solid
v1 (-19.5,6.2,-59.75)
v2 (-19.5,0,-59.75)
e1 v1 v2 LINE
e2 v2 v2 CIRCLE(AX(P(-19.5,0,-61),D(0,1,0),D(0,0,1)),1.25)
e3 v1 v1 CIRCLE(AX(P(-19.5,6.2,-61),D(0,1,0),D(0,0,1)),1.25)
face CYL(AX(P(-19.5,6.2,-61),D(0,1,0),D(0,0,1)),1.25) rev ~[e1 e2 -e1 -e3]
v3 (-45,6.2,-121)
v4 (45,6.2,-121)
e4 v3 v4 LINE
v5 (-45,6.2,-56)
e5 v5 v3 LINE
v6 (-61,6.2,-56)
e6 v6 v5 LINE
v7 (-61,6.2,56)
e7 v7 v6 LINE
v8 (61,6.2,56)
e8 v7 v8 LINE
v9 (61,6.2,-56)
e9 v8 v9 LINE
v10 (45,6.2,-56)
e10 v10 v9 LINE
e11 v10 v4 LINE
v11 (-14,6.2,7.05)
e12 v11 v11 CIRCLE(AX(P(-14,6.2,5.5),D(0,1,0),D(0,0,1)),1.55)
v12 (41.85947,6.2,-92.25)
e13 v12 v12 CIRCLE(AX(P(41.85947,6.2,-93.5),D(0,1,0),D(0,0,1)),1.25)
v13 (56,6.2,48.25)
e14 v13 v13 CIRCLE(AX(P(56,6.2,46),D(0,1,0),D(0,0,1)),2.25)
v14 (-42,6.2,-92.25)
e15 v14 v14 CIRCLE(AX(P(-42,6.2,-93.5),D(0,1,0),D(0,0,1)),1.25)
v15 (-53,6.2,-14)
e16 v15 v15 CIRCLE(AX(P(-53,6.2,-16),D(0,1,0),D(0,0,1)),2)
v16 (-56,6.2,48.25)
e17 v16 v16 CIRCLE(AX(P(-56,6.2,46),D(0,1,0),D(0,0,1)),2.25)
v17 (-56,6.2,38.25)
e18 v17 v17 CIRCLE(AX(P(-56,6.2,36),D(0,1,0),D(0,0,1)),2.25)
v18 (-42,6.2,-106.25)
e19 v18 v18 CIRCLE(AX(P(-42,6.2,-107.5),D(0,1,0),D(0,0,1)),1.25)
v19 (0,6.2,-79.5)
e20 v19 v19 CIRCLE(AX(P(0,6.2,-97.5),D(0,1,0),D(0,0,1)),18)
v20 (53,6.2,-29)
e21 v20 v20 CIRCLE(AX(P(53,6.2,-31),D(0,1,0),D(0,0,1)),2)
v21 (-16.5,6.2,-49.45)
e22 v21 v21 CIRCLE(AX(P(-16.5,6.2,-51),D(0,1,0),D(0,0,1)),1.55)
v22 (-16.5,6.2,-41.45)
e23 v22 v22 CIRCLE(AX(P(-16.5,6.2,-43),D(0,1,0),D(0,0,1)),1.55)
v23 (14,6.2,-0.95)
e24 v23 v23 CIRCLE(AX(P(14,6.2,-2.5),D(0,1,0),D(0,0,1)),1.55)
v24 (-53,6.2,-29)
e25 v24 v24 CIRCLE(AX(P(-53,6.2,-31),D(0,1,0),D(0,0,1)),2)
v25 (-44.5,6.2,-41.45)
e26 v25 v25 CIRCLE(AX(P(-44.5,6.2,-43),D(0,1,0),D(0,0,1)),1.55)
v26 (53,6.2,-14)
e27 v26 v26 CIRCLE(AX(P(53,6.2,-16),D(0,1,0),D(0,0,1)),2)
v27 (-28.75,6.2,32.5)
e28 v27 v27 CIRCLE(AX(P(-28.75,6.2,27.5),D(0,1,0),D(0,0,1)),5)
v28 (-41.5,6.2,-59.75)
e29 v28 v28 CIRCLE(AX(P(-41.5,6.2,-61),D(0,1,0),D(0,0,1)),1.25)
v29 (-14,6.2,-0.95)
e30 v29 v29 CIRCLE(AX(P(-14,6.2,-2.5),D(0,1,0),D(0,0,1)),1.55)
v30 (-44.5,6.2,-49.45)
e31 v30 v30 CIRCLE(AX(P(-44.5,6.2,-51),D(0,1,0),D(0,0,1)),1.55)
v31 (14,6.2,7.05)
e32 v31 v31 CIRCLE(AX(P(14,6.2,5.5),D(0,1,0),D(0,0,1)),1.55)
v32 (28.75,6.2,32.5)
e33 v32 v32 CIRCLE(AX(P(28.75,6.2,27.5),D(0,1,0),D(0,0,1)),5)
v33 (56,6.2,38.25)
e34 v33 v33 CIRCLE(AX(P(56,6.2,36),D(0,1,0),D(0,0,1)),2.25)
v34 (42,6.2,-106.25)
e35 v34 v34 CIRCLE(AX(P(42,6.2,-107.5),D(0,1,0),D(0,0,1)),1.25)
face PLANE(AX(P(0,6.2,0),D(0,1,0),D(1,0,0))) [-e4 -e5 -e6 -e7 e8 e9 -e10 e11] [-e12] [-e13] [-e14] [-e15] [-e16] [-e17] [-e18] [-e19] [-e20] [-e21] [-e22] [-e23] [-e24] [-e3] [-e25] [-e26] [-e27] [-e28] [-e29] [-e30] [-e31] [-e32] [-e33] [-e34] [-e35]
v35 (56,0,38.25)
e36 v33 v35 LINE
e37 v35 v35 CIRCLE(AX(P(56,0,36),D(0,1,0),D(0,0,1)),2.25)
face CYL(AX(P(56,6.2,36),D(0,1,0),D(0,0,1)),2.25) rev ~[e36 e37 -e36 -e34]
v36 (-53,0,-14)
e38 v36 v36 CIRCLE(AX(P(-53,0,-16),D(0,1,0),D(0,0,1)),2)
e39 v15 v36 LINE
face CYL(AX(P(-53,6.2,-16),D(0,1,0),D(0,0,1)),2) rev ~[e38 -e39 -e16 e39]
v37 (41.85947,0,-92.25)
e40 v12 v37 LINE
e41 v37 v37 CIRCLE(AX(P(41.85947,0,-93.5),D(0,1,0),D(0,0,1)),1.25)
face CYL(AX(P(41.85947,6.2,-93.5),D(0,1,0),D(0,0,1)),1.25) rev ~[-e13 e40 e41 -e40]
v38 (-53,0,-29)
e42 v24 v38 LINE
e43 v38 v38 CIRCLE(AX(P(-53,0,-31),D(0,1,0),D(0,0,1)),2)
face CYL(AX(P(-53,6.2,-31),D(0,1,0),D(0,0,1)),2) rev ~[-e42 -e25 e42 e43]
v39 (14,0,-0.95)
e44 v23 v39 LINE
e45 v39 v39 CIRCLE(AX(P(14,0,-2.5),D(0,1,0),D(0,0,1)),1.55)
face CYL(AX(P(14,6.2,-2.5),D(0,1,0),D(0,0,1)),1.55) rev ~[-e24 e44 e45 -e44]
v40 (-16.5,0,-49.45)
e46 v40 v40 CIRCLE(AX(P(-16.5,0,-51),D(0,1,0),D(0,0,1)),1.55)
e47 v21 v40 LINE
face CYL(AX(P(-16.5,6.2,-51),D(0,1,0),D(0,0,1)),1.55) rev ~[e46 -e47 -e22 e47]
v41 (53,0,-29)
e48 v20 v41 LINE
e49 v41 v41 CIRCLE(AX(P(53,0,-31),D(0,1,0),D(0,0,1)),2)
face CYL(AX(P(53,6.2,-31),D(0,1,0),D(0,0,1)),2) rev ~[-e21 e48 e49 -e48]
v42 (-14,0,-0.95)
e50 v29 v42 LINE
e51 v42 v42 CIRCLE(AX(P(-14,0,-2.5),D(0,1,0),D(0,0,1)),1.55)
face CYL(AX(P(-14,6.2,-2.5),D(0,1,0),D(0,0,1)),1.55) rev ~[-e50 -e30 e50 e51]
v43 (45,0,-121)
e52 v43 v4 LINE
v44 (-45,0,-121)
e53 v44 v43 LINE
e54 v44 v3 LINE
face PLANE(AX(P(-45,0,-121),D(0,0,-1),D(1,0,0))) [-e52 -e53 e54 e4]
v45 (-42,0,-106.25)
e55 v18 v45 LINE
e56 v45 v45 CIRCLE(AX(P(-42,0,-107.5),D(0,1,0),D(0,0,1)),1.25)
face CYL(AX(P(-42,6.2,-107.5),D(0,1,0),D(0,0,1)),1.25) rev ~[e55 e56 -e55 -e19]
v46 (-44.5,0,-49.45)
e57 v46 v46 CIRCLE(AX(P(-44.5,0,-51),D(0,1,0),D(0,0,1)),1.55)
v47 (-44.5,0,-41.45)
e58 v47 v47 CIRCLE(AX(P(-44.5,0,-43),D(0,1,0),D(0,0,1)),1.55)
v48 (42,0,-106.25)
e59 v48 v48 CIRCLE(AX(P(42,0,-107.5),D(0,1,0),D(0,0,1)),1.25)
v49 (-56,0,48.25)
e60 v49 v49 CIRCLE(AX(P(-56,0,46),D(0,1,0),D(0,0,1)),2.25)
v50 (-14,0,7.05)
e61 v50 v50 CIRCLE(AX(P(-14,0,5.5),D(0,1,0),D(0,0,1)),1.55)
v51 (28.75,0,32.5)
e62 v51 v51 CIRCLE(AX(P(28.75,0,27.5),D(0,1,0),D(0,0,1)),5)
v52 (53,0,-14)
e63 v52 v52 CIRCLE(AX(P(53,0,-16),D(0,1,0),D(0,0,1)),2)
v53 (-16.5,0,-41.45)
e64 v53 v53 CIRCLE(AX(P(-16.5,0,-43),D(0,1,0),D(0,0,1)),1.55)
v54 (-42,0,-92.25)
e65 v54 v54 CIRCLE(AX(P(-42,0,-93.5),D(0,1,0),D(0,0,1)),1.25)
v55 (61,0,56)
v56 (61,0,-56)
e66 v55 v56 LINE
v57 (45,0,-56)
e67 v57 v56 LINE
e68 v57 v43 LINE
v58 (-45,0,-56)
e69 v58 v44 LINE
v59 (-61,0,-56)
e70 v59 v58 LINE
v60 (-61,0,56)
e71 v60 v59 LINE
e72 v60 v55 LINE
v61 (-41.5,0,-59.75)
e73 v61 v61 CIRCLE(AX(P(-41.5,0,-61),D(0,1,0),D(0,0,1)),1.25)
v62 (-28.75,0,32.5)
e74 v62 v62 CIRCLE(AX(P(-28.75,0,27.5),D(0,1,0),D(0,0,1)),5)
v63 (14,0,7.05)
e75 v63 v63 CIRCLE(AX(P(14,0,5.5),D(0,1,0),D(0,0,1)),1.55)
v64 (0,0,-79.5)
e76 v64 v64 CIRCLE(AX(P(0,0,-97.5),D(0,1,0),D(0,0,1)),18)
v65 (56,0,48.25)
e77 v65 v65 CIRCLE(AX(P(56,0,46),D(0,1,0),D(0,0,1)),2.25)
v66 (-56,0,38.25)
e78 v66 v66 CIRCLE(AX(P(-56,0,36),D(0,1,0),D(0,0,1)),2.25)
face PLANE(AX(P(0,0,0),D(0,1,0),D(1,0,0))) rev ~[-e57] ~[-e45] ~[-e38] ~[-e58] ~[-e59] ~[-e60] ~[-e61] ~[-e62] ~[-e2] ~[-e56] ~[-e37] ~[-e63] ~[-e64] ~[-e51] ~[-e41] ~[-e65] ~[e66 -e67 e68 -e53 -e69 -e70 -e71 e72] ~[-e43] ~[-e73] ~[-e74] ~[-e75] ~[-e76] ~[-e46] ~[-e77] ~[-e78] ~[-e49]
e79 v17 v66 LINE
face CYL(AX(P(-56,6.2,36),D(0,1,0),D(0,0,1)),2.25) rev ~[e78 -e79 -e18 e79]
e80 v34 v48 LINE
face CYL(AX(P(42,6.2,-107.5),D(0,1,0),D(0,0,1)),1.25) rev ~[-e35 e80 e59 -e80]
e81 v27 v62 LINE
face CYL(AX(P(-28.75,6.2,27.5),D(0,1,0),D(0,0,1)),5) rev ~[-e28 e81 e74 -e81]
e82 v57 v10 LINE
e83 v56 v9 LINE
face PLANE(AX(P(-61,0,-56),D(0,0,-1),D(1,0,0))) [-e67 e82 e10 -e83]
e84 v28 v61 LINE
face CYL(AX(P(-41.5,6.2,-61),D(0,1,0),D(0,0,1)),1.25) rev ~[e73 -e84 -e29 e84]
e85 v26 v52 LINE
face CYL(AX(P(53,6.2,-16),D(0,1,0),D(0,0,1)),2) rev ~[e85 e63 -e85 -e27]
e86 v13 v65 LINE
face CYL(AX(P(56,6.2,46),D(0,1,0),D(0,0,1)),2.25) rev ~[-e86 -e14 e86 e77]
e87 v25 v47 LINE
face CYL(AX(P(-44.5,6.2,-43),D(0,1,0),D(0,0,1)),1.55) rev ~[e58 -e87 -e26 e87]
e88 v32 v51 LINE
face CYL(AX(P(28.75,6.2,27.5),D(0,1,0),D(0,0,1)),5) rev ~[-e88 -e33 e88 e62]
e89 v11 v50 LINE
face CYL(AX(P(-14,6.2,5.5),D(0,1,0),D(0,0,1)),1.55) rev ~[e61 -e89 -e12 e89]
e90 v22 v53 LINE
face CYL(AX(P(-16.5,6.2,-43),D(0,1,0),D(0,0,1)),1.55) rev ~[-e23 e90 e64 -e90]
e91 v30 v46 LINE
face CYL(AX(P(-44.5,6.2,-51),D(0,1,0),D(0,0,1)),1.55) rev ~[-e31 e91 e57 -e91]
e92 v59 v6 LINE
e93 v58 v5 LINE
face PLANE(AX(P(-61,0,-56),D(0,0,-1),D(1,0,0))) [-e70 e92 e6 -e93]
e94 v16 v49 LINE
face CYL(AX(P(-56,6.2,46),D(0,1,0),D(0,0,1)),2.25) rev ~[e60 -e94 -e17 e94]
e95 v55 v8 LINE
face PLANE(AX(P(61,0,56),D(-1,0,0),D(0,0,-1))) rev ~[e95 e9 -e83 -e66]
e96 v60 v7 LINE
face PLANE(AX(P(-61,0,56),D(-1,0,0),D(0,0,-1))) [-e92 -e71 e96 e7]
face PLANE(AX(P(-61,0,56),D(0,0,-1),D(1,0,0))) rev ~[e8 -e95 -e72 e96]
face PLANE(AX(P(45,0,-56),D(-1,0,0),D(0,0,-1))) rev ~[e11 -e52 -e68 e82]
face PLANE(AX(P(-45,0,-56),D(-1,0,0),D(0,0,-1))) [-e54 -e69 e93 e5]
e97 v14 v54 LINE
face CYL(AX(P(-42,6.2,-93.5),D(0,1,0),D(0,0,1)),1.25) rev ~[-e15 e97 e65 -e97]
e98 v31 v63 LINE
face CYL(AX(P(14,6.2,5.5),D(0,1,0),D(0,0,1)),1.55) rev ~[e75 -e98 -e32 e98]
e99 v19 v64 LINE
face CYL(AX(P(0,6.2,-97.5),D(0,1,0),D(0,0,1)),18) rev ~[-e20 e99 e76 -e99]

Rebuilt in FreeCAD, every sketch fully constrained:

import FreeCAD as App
import Part
import Sketcher

doc = App.newDocument("Part")
body = doc.addObject("PartDesign::Body", "Body")

# Sketch on XZ plane
sketch1 = body.newObject("Sketcher::SketchObject", "Sketch")
sketch1.AttachmentSupport = (doc.getObject("XZ_Plane"), [""])
sketch1.MapMode = "FlatFace"
sketch1.addGeometry(Part.LineSegment(App.Vector(-61, -56, 0), App.Vector(-61, 56, 0)), False)
sketch1.addGeometry(Part.LineSegment(App.Vector(-61, 56, 0), App.Vector(61, 56, 0)), False)
sketch1.addGeometry(Part.LineSegment(App.Vector(61, 56, 0), App.Vector(61, -56, 0)), False)
sketch1.addGeometry(Part.LineSegment(App.Vector(61, -56, 0), App.Vector(-61, -56, 0)), False)
sketch1.addConstraint(Sketcher.Constraint("Coincident", 0, 2, 1, 1))
sketch1.addConstraint(Sketcher.Constraint("Coincident", 1, 2, 2, 1))
sketch1.addConstraint(Sketcher.Constraint("Coincident", 2, 2, 3, 1))
sketch1.addConstraint(Sketcher.Constraint("Coincident", 3, 2, 0, 1))
sketch1.addConstraint(Sketcher.Constraint("Vertical", 0))
sketch1.addConstraint(Sketcher.Constraint("Horizontal", 1))
sketch1.addConstraint(Sketcher.Constraint("Vertical", 2))
sketch1.addConstraint(Sketcher.Constraint("Horizontal", 3))
sketch1.addConstraint(Sketcher.Constraint("Symmetric", 0, 2, 2, 2, -1, 1))
sketch1.addConstraint(Sketcher.Constraint("DistanceX", 1, 1, 1, 2, 122.0))
sketch1.addConstraint(Sketcher.Constraint("DistanceY", 0, 1, 0, 2, 112.0))
pad1 = body.newObject("PartDesign::Pad", "Pad")
pad1.Profile = sketch1
pad1.Length = 6.2
pad1.Reversed = True

# Sketch on XZ plane
sketch2 = body.newObject("Sketcher::SketchObject", "Sketch001")
sketch2.AttachmentSupport = (doc.getObject("XZ_Plane"), [""])
sketch2.MapMode = "FlatFace"
sketch2.addGeometry(Part.LineSegment(App.Vector(-45, -121, 0), App.Vector(-45, -56, 0)), False)
sketch2.addGeometry(Part.LineSegment(App.Vector(-45, -56, 0), App.Vector(45, -56, 0)), False)
sketch2.addGeometry(Part.LineSegment(App.Vector(45, -56, 0), App.Vector(45, -121, 0)), False)
sketch2.addGeometry(Part.LineSegment(App.Vector(45, -121, 0), App.Vector(-45, -121, 0)), False)
sketch2.addConstraint(Sketcher.Constraint("Coincident", 0, 2, 1, 1))
sketch2.addConstraint(Sketcher.Constraint("Coincident", 1, 2, 2, 1))
sketch2.addConstraint(Sketcher.Constraint("Coincident", 2, 2, 3, 1))
sketch2.addConstraint(Sketcher.Constraint("Coincident", 3, 2, 0, 1))
sketch2.addConstraint(Sketcher.Constraint("Vertical", 0))
sketch2.addConstraint(Sketcher.Constraint("Horizontal", 1))
sketch2.addConstraint(Sketcher.Constraint("Vertical", 2))
sketch2.addConstraint(Sketcher.Constraint("Horizontal", 3))
sketch2.addConstraint(Sketcher.Constraint("DistanceX", 1, 1, 1, 2, 90.0))
sketch2.addConstraint(Sketcher.Constraint("DistanceY", 0, 1, 0, 2, 65.0))
sketch2.addConstraint(Sketcher.Constraint("DistanceX", 0, 2, -1, 1, 45.0))
sketch2.addConstraint(Sketcher.Constraint("DistanceY", 0, 2, -1, 1, 56.0))
pad2 = body.newObject("PartDesign::Pad", "Pad001")
pad2.Profile = sketch2
pad2.Length = 6.2
pad2.Reversed = True

# Sketch on XZ plane
sketch3 = body.newObject("Sketcher::SketchObject", "Sketch002")
sketch3.AttachmentSupport = (doc.getObject("XZ_Plane"), [""])
sketch3.MapMode = "FlatFace"
sketch3.AttachmentOffset = App.Placement(App.Vector(0, 0, -6.2), App.Rotation())
sketch3.addGeometry(Part.Circle(App.Vector(-41.5, -61, 0), App.Vector(0, 0, 1), 1.25), False)
sketch3.addGeometry(Part.Circle(App.Vector(-19.5, -61, 0), App.Vector(0, 0, 1), 1.25), False)
sketch3.addGeometry(Part.Circle(App.Vector(-42, -93.5, 0), App.Vector(0, 0, 1), 1.25), False)
sketch3.addGeometry(Part.Circle(App.Vector(-42, -107.5, 0), App.Vector(0, 0, 1), 1.25), False)
sketch3.addGeometry(Part.Circle(App.Vector(42, -107.5, 0), App.Vector(0, 0, 1), 1.25), False)
sketch3.addGeometry(Part.Circle(App.Vector(41.85947, -93.5, 0), App.Vector(0, 0, 1), 1.25), False)
sketch3.addGeometry(Part.Circle(App.Vector(0, -97.5, 0), App.Vector(0, 0, 1), 18), False)
sketch3.addConstraint(Sketcher.Constraint("Equal", 0, 1))
sketch3.addConstraint(Sketcher.Constraint("Equal", 1, 2))
sketch3.addConstraint(Sketcher.Constraint("Equal", 2, 3))
sketch3.addConstraint(Sketcher.Constraint("Equal", 3, 4))
sketch3.addConstraint(Sketcher.Constraint("Equal", 4, 5))
sketch3.addConstraint(Sketcher.Constraint("Symmetric", 3, 3, 4, 3, -2))
sketch3.addConstraint(Sketcher.Constraint("PointOnObject", 6, 3, -2))
sketch3.addConstraint(Sketcher.Constraint("Horizontal", 0, 3, 1, 3))
sketch3.addConstraint(Sketcher.Constraint("Horizontal", 2, 3, 5, 3))
sketch3.addConstraint(Sketcher.Constraint("Vertical", 2, 3, 3, 3))
sketch3.addConstraint(Sketcher.Constraint("Diameter", 6, 36.0))
sketch3.addConstraint(Sketcher.Constraint("Diameter", 0, 2.5))
sketch3.addConstraint(Sketcher.Constraint("DistanceY", 0, 3, -1, 1, 61.0))
sketch3.addConstraint(Sketcher.Constraint("DistanceX", 2, 3, -1, 1, 42.0))
sketch3.addConstraint(Sketcher.Constraint("DistanceX", 0, 3, 1, 3, 22.0))
sketch3.addConstraint(Sketcher.Constraint("DistanceY", 3, 3, 2, 3, 14.0))
sketch3.addConstraint(Sketcher.Constraint("DistanceY", 6, 3, 5, 3, 4.0))
sketch3.addConstraint(Sketcher.Constraint("DistanceX", 0, 3, -1, 1, 41.5))
sketch3.addConstraint(Sketcher.Constraint("DistanceY", 2, 3, -1, 1, 93.5))
sketch3.addConstraint(Sketcher.Constraint("DistanceX", -1, 1, 5, 3, 41.85947))
pocket1 = body.newObject("PartDesign::Pocket", "Pocket")
pocket1.Profile = sketch3
pocket1.Type = "ThroughAll"
pocket1.Reversed = True

# Sketch on XZ plane
sketch4 = body.newObject("Sketcher::SketchObject", "Sketch003")
sketch4.AttachmentSupport = (doc.getObject("XZ_Plane"), [""])
sketch4.MapMode = "FlatFace"
sketch4.AttachmentOffset = App.Placement(App.Vector(0, 0, -6.2), App.Rotation())
sketch4.addGeometry(Part.Circle(App.Vector(-44.5, -51, 0), App.Vector(0, 0, 1), 1.55), False)
sketch4.addGeometry(Part.Circle(App.Vector(-16.5, -51, 0), App.Vector(0, 0, 1), 1.55), False)
sketch4.addGeometry(Part.Circle(App.Vector(-16.5, -43, 0), App.Vector(0, 0, 1), 1.55), False)
sketch4.addGeometry(Part.Circle(App.Vector(-44.5, -43, 0), App.Vector(0, 0, 1), 1.55), False)
sketch4.addGeometry(Part.Circle(App.Vector(-14, -2.5, 0), App.Vector(0, 0, 1), 1.55), False)
sketch4.addGeometry(Part.Circle(App.Vector(14, -2.5, 0), App.Vector(0, 0, 1), 1.55), False)
sketch4.addGeometry(Part.Circle(App.Vector(14, 5.5, 0), App.Vector(0, 0, 1), 1.55), False)
sketch4.addGeometry(Part.Circle(App.Vector(-14, 5.5, 0), App.Vector(0, 0, 1), 1.55), False)
sketch4.addConstraint(Sketcher.Constraint("Equal", 0, 1))
sketch4.addConstraint(Sketcher.Constraint("Equal", 1, 2))
sketch4.addConstraint(Sketcher.Constraint("Equal", 2, 3))
sketch4.addConstraint(Sketcher.Constraint("Equal", 3, 4))
sketch4.addConstraint(Sketcher.Constraint("Equal", 4, 5))
sketch4.addConstraint(Sketcher.Constraint("Equal", 5, 6))
sketch4.addConstraint(Sketcher.Constraint("Equal", 6, 7))
sketch4.addConstraint(Sketcher.Constraint("Symmetric", 4, 3, 5, 3, -2))
sketch4.addConstraint(Sketcher.Constraint("Symmetric", 6, 3, 7, 3, -2))
sketch4.addConstraint(Sketcher.Constraint("Horizontal", 0, 3, 1, 3))
sketch4.addConstraint(Sketcher.Constraint("Horizontal", 2, 3, 3, 3))
sketch4.addConstraint(Sketcher.Constraint("Vertical", 1, 3, 2, 3))
sketch4.addConstraint(Sketcher.Constraint("Vertical", 0, 3, 3, 3))
sketch4.addConstraint(Sketcher.Constraint("Vertical", 5, 3, 6, 3))
sketch4.addConstraint(Sketcher.Constraint("Diameter", 0, 3.1))
sketch4.addConstraint(Sketcher.Constraint("DistanceY", 0, 3, -1, 1, 51.0))
sketch4.addConstraint(Sketcher.Constraint("DistanceY", 2, 3, -1, 1, 43.0))
sketch4.addConstraint(Sketcher.Constraint("DistanceX", 4, 3, -1, 1, 14.0))
sketch4.addConstraint(Sketcher.Constraint("DistanceX", 0, 3, 1, 3, 28.0))
sketch4.addConstraint(Sketcher.Constraint("DistanceY", 5, 3, 6, 3, 8.0))
sketch4.addConstraint(Sketcher.Constraint("DistanceX", 0, 3, -1, 1, 44.5))
sketch4.addConstraint(Sketcher.Constraint("DistanceY", 4, 3, -1, 1, 2.5))
pocket2 = body.newObject("PartDesign::Pocket", "Pocket001")
pocket2.Profile = sketch4
pocket2.Type = "ThroughAll"
pocket2.Reversed = True

# Sketch on XZ plane
sketch5 = body.newObject("Sketcher::SketchObject", "Sketch004")
sketch5.AttachmentSupport = (doc.getObject("XZ_Plane"), [""])
sketch5.MapMode = "FlatFace"
sketch5.AttachmentOffset = App.Placement(App.Vector(0, 0, -6.2), App.Rotation())
sketch5.addGeometry(Part.Circle(App.Vector(-53, -31, 0), App.Vector(0, 0, 1), 2), False)
sketch5.addGeometry(Part.Circle(App.Vector(-53, -16, 0), App.Vector(0, 0, 1), 2), False)
sketch5.addGeometry(Part.Circle(App.Vector(53, -16, 0), App.Vector(0, 0, 1), 2), False)
sketch5.addGeometry(Part.Circle(App.Vector(53, -31, 0), App.Vector(0, 0, 1), 2), False)
sketch5.addConstraint(Sketcher.Constraint("Equal", 0, 1))
sketch5.addConstraint(Sketcher.Constraint("Equal", 1, 2))
sketch5.addConstraint(Sketcher.Constraint("Equal", 2, 3))
sketch5.addConstraint(Sketcher.Constraint("Symmetric", 1, 3, 2, 3, -2))
sketch5.addConstraint(Sketcher.Constraint("Symmetric", 0, 3, 3, 3, -2))
sketch5.addConstraint(Sketcher.Constraint("Vertical", 0, 3, 1, 3))
sketch5.addConstraint(Sketcher.Constraint("Diameter", 0, 4.0))
sketch5.addConstraint(Sketcher.Constraint("DistanceX", 0, 3, -1, 1, 53.0))
sketch5.addConstraint(Sketcher.Constraint("DistanceY", 0, 3, -1, 1, 31.0))
sketch5.addConstraint(Sketcher.Constraint("DistanceY", 1, 3, -1, 1, 16.0))
pocket3 = body.newObject("PartDesign::Pocket", "Pocket002")
pocket3.Profile = sketch5
pocket3.Length = 10
pocket3.Reversed = True

# Sketch on XZ plane
sketch6 = body.newObject("Sketcher::SketchObject", "Sketch005")
sketch6.AttachmentSupport = (doc.getObject("XZ_Plane"), [""])
sketch6.MapMode = "FlatFace"
sketch6.AttachmentOffset = App.Placement(App.Vector(0, 0, -6.2), App.Rotation())
sketch6.addGeometry(Part.Circle(App.Vector(-28.75, 27.5, 0), App.Vector(0, 0, 1), 5), False)
sketch6.addGeometry(Part.Circle(App.Vector(28.75, 27.5, 0), App.Vector(0, 0, 1), 5), False)
sketch6.addConstraint(Sketcher.Constraint("Equal", 0, 1))
sketch6.addConstraint(Sketcher.Constraint("Symmetric", 0, 3, 1, 3, -2))
sketch6.addConstraint(Sketcher.Constraint("Diameter", 0, 10.0))
sketch6.addConstraint(Sketcher.Constraint("DistanceY", -1, 1, 0, 3, 27.5))
sketch6.addConstraint(Sketcher.Constraint("DistanceX", 0, 3, 1, 3, 57.5))
pocket4 = body.newObject("PartDesign::Pocket", "Pocket003")
pocket4.Profile = sketch6
pocket4.Length = 10
pocket4.Reversed = True

# Sketch on XZ plane
sketch7 = body.newObject("Sketcher::SketchObject", "Sketch006")
sketch7.AttachmentSupport = (doc.getObject("XZ_Plane"), [""])
sketch7.MapMode = "FlatFace"
sketch7.AttachmentOffset = App.Placement(App.Vector(0, 0, -6.2), App.Rotation())
sketch7.addGeometry(Part.Circle(App.Vector(-56, 36, 0), App.Vector(0, 0, 1), 2.25), False)
sketch7.addGeometry(Part.Circle(App.Vector(-56, 46, 0), App.Vector(0, 0, 1), 2.25), False)
sketch7.addGeometry(Part.Circle(App.Vector(56, 46, 0), App.Vector(0, 0, 1), 2.25), False)
sketch7.addGeometry(Part.Circle(App.Vector(56, 36, 0), App.Vector(0, 0, 1), 2.25), False)
sketch7.addConstraint(Sketcher.Constraint("Equal", 0, 1))
sketch7.addConstraint(Sketcher.Constraint("Equal", 1, 2))
sketch7.addConstraint(Sketcher.Constraint("Equal", 2, 3))
sketch7.addConstraint(Sketcher.Constraint("Symmetric", 1, 3, 2, 3, -2))
sketch7.addConstraint(Sketcher.Constraint("Symmetric", 0, 3, 3, 3, -2))
sketch7.addConstraint(Sketcher.Constraint("Vertical", 0, 3, 1, 3))
sketch7.addConstraint(Sketcher.Constraint("Diameter", 0, 4.5))
sketch7.addConstraint(Sketcher.Constraint("DistanceX", 0, 3, -1, 1, 56.0))
sketch7.addConstraint(Sketcher.Constraint("DistanceY", -1, 1, 0, 3, 36.0))
sketch7.addConstraint(Sketcher.Constraint("DistanceY", -1, 1, 1, 3, 46.0))
pocket5 = body.newObject("PartDesign::Pocket", "Pocket004")
pocket5.Profile = sketch7
pocket5.Type = "ThroughAll"
pocket5.Reversed = True

doc.recompute()
